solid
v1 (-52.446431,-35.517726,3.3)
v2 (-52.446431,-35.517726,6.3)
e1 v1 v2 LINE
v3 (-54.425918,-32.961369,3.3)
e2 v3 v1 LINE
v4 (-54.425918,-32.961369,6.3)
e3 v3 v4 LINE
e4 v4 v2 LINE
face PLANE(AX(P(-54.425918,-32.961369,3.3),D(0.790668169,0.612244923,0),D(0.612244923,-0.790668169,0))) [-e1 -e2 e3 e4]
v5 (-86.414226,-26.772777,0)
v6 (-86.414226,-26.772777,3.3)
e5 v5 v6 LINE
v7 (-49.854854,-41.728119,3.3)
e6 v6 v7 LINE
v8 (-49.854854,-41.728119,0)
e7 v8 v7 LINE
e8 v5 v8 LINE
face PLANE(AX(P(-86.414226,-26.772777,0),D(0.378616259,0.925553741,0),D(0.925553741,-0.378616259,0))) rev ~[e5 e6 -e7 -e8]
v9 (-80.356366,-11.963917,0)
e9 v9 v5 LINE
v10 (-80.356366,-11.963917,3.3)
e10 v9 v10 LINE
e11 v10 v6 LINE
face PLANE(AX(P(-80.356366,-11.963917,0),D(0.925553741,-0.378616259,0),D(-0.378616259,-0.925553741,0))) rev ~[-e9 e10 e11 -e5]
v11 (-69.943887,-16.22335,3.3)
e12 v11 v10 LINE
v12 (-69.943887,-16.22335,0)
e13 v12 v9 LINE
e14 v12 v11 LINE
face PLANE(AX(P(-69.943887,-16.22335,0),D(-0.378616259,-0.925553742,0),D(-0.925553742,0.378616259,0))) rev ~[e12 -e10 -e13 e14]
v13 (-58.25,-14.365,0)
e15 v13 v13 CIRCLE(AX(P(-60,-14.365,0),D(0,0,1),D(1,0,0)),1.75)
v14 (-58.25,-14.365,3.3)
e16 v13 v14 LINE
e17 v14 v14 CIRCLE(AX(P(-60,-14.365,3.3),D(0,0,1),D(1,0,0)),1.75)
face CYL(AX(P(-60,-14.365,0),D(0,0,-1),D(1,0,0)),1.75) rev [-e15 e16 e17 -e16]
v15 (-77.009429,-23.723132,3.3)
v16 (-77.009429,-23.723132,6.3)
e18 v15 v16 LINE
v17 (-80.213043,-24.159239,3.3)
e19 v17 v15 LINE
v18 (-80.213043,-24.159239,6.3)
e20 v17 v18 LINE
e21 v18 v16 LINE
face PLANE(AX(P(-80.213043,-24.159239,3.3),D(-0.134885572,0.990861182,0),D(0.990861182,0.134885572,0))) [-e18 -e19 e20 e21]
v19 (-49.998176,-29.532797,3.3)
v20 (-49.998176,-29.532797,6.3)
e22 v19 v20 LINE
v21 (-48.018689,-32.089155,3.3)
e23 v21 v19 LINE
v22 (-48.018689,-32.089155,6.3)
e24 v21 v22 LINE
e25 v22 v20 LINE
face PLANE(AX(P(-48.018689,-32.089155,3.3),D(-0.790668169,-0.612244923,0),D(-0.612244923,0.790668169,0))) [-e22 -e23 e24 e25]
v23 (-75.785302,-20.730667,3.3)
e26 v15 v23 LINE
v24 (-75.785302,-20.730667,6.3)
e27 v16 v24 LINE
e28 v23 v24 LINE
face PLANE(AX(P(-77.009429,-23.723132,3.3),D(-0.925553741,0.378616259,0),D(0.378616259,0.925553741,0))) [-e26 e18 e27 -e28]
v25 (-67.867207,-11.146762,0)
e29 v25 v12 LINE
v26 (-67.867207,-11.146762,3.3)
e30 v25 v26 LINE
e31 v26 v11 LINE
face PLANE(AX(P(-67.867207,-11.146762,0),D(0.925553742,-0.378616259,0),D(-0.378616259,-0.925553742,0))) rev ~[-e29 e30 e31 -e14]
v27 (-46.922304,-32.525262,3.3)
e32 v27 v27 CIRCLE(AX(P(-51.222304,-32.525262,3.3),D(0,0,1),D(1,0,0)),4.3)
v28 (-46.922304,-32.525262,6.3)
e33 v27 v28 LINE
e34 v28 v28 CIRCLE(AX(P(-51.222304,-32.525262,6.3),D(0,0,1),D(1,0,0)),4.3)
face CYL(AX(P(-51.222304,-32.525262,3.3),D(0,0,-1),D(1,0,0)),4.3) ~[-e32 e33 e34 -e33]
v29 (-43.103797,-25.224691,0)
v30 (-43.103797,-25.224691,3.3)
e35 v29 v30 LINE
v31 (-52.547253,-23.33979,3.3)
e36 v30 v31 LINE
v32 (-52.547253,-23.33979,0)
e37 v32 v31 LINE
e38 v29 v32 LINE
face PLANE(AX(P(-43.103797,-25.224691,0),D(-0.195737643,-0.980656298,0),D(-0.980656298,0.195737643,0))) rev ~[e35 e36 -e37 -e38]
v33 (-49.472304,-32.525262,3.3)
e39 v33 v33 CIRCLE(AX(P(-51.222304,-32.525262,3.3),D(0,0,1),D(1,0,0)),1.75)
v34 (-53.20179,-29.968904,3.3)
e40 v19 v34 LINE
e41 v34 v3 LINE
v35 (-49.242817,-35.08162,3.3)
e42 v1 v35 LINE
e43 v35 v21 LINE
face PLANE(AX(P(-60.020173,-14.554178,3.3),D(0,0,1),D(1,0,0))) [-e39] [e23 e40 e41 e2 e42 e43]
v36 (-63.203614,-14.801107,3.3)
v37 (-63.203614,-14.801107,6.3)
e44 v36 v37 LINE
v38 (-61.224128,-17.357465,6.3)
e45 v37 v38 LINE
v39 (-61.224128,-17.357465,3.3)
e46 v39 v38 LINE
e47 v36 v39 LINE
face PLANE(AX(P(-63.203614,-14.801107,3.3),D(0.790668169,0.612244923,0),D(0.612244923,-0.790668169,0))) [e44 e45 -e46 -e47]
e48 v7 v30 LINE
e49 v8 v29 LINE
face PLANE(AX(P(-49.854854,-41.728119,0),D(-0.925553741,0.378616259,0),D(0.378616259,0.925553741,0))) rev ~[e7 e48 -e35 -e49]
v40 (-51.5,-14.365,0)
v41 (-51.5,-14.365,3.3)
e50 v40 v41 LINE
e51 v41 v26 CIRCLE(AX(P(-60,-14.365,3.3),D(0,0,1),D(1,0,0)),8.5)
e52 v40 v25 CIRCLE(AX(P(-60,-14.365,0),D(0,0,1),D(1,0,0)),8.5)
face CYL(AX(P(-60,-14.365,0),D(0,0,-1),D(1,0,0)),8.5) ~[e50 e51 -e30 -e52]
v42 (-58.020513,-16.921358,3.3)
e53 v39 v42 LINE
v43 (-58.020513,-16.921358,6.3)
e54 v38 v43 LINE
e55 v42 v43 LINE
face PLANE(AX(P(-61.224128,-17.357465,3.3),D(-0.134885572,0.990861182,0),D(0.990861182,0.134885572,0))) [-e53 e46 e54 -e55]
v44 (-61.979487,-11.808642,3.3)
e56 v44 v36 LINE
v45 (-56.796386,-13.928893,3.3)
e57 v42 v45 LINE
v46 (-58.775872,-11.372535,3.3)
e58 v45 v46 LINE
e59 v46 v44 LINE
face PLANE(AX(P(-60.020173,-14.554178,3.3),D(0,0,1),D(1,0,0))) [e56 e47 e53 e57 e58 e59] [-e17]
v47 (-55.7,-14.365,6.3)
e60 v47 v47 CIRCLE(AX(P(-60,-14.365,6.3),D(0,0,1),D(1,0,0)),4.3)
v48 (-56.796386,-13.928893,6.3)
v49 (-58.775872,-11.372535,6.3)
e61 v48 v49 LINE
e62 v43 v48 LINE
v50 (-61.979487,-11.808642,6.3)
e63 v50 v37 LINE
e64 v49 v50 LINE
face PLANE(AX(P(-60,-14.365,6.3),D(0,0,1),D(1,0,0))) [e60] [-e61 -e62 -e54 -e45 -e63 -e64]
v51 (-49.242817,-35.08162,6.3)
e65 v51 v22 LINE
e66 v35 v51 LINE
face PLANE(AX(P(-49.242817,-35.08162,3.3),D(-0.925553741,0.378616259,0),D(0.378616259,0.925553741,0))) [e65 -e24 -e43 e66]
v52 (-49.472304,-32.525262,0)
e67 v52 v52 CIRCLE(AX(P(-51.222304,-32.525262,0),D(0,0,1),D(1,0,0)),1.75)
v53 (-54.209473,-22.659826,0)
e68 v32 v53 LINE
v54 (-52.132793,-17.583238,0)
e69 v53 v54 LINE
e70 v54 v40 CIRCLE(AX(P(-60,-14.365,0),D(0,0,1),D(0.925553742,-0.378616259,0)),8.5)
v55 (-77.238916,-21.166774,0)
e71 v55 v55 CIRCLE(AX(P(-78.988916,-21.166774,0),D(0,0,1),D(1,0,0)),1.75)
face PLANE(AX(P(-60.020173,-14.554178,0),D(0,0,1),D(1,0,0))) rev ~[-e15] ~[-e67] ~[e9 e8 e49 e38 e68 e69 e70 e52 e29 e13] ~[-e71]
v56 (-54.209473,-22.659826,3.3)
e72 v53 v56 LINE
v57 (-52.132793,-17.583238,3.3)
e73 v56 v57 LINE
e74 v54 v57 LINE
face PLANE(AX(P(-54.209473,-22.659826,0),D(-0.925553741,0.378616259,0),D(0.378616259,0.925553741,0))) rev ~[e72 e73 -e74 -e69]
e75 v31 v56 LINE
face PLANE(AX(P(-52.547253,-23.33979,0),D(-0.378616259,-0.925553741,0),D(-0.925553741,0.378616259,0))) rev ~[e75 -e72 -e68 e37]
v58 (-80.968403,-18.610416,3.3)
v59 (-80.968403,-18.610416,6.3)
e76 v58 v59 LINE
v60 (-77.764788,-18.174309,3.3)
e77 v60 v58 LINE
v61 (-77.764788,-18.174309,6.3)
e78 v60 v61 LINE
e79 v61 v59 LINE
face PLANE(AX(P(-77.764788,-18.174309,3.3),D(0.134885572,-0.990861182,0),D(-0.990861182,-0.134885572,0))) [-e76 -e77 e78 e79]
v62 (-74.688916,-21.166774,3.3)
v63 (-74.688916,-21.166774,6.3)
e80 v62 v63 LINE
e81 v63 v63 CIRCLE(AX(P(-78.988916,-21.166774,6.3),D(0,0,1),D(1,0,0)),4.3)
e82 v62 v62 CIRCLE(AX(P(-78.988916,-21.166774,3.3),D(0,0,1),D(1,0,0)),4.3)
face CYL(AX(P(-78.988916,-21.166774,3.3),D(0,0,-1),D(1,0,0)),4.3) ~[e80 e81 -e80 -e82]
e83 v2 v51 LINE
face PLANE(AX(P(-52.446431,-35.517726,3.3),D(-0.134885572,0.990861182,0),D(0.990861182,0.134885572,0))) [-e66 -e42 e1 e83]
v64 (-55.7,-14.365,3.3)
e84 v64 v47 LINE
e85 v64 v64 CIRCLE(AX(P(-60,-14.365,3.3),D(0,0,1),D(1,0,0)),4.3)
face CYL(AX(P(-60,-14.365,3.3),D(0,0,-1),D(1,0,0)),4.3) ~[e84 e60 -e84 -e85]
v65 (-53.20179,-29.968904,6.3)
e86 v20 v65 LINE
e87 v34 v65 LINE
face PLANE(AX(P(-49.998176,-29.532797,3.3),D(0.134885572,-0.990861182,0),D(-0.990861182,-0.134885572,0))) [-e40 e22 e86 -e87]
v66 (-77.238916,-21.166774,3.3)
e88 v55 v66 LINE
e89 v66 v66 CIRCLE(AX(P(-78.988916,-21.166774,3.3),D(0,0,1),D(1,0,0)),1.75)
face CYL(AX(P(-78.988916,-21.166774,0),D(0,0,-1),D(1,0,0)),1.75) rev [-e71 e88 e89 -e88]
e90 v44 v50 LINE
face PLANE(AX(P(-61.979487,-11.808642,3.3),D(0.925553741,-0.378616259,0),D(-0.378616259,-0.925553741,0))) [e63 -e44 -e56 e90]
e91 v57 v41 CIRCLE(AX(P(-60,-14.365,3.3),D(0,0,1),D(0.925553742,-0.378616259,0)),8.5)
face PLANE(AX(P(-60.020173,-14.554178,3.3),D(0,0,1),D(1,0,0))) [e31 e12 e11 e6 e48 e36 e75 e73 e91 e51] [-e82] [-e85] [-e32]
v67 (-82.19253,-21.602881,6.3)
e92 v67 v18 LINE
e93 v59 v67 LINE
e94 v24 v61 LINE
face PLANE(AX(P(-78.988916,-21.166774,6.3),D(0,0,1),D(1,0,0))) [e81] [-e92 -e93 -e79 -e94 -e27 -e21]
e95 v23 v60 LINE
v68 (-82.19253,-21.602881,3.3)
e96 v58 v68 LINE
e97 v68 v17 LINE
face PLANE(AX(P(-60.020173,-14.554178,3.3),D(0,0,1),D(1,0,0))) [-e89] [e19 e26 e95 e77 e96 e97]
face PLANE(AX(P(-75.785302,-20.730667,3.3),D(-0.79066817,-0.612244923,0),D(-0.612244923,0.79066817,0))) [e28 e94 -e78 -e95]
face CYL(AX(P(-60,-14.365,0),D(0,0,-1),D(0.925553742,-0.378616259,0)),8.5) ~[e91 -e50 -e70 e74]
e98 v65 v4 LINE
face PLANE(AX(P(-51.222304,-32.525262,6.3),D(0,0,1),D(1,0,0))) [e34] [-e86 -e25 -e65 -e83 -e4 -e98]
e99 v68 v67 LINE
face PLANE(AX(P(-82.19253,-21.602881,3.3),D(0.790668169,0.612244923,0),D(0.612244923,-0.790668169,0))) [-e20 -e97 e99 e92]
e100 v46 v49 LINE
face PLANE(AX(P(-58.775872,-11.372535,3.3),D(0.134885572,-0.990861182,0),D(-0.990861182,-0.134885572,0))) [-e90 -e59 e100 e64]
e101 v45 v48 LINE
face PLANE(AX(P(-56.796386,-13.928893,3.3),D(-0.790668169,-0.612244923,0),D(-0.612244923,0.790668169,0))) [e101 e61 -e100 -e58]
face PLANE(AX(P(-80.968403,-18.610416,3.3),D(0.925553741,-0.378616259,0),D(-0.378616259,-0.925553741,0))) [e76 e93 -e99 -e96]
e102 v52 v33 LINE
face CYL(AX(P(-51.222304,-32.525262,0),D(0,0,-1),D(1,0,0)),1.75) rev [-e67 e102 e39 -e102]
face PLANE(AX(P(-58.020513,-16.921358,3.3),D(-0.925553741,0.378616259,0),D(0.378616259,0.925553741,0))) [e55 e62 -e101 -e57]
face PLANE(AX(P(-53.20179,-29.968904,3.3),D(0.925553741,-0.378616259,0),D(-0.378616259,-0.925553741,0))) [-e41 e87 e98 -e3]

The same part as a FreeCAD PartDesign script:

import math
import FreeCAD as App
import Part
import Sketcher
from FreeCAD import Vector
Q = App.Units.Quantity

doc = App.newDocument("Part")
body = doc.addObject("PartDesign::Body", "Body")

# Sketch on XY plane
sketch1 = body.newObject("Sketcher::SketchObject", "Sketch")
sketch1.AttachmentSupport = (doc.getObject("XY_Plane"), [""])
sketch1.MapMode = "FlatFace"
sketch1.addGeometry(Part.ArcOfCircle(Part.Circle(Vector(-60, -14.365, 0), Vector(0, 0, 1), 8.5), math.radians(0), math.radians(157.752003)), False)
sketch1.addGeometry(Part.LineSegment(Vector(-67.867207, -11.146762, 0), Vector(-69.943887, -16.22335, 0)), False)
sketch1.addGeometry(Part.LineSegment(Vector(-69.943887, -16.22335, 0), Vector(-80.356366, -11.963917, 0)), False)
sketch1.addGeometry(Part.LineSegment(Vector(-80.356366, -11.963917, 0), Vector(-86.414226, -26.772777, 0)), False)
sketch1.addGeometry(Part.LineSegment(Vector(-86.414226, -26.772777, 0), Vector(-49.854854, -41.728119, 0)), False)
sketch1.addGeometry(Part.LineSegment(Vector(-49.854854, -41.728119, 0), Vector(-43.103797, -25.224691, 0)), False)
sketch1.addGeometry(Part.LineSegment(Vector(-43.103797, -25.224691, 0), Vector(-52.547253, -23.33979, 0)), False)
sketch1.addGeometry(Part.LineSegment(Vector(-52.547253, -23.33979, 0), Vector(-54.209473, -22.659826, 0)), False)
sketch1.addGeometry(Part.LineSegment(Vector(-54.209473, -22.659826, 0), Vector(-52.132793, -17.583238, 0)), False)
sketch1.addGeometry(Part.ArcOfCircle(Part.Circle(Vector(-60, -14.365, 0), Vector(0, 0, 1), 8.5), math.radians(-22.247997), math.radians(0)), False)
sketch1.addGeometry(Part.Circle(Vector(-51.222304, -32.525262, 0), Vector(0, 0, 1), 1.75), False)
sketch1.addGeometry(Part.Circle(Vector(-78.988916, -21.166774, 0), Vector(0, 0, 1), 1.75), False)
sketch1.addGeometry(Part.Circle(Vector(-60, -14.365, 0), Vector(0, 0, 1), 1.75), False)
sketch1.addConstraint(Sketcher.Constraint("Tangent", 0, 2, 1, 1))
sketch1.addConstraint(Sketcher.Constraint("Coincident", 1, 2, 2, 1))
sketch1.addConstraint(Sketcher.Constraint("Coincident", 2, 2, 3, 1))
sketch1.addConstraint(Sketcher.Constraint("Coincident", 3, 2, 4, 1))
sketch1.addConstraint(Sketcher.Constraint("Coincident", 4, 2, 5, 1))
sketch1.addConstraint(Sketcher.Constraint("Coincident", 5, 2, 6, 1))
sketch1.addConstraint(Sketcher.Constraint("Coincident", 6, 2, 7, 1))
sketch1.addConstraint(Sketcher.Constraint("Coincident", 7, 2, 8, 1))
sketch1.addConstraint(Sketcher.Constraint("Tangent", 8, 2, 9, 1))
sketch1.addConstraint(Sketcher.Constraint("Tangent", 9, 2, 0, 1))
sketch1.addConstraint(Sketcher.Constraint("Coincident", 12, 3, 0, 3))
sketch1.addConstraint(Sketcher.Constraint("Equal", 0, 9))
sketch1.addConstraint(Sketcher.Constraint("Equal", 10, 11))
sketch1.addConstraint(Sketcher.Constraint("Equal", 11, 12))
sketch1.addConstraint(Sketcher.Constraint("Perpendicular", 1, 2))
sketch1.addConstraint(Sketcher.Constraint("Perpendicular", 2, 3))
sketch1.addConstraint(Sketcher.Constraint("Perpendicular", 3, 4))
sketch1.addConstraint(Sketcher.Constraint("Perpendicular", 4, 5))
sketch1.addConstraint(Sketcher.Constraint("Perpendicular", 5, 7))
sketch1.addConstraint(Sketcher.Constraint("Perpendicular", 7, 8))
sketch1.addConstraint(Sketcher.Constraint("Horizontal", 12, 3, 9, 2))
sketch1.addConstraint(Sketcher.Constraint("Equal", 1, 8))
sketch1.addConstraint(Sketcher.Constraint("Diameter", 10, Q("3.5 mm")))
sketch1.addConstraint(Sketcher.Constraint("Radius", 0, Q("8.5 mm")))
sketch1.addConstraint(Sketcher.Constraint("Distance", 3, Q("16 mm")))
sketch1.addConstraint(Sketcher.Constraint("DistanceX", 0, 3, -1, 1, Q("60 mm")))
sketch1.addConstraint(Sketcher.Constraint("Distance", 4, Q("39.5 mm")))
sketch1.addConstraint(Sketcher.Constraint("Distance", 2, Q("11.25 mm")))
sketch1.addConstraint(Sketcher.Constraint("DistanceY", 0, 3, -1, 1, Q("14.365 mm")))
sketch1.addConstraint(Sketcher.Constraint("DistanceY", 10, 3, 0, 2, Q("21.3785 mm")))
sketch1.addConstraint(Sketcher.Constraint("DistanceY", 5, 2, 6, 2, Q("1.884901 mm")))
sketch1.addConstraint(Sketcher.Constraint("Distance", 1, Q("5.48492 mm")))
sketch1.addConstraint(Sketcher.Constraint("Distance", 5, Q("17.830869 mm")))
sketch1.addConstraint(Sketcher.Constraint("Distance", 6, Q("9.629731 mm")))
sketch1.addConstraint(Sketcher.Constraint("DistanceX", 11, 3, 0, 2, Q("11.121709 mm")))
sketch1.addConstraint(Sketcher.Constraint("DistanceX", 10, 3, 4, 2, Q("1.36745 mm")))
sketch1.addConstraint(Sketcher.Constraint("DistanceY", 11, 3, -1, 1, Q("21.166774 mm")))
pad1 = body.newObject("PartDesign::Pad", "Pad")
pad1.Profile = sketch1
pad1.Length = 3.3

# Sketch on XY plane
sketch2 = body.newObject("Sketcher::SketchObject", "Sketch001")
sketch2.AttachmentSupport = (doc.getObject("XY_Plane"), [""])
sketch2.MapMode = "FlatFace"
sketch2.AttachmentOffset = App.Placement(Vector(0, 0, 3.3), App.Rotation())
sketch2.addGeometry(Part.Circle(Vector(-78.988916, -21.166774, 0), Vector(0, 0, 1), 4.3), False)
sketch2.addGeometry(Part.LineSegment(Vector(-77.764788, -18.174309, 0), Vector(-75.785302, -20.730667, 0)), False)
sketch2.addGeometry(Part.LineSegment(Vector(-75.785302, -20.730667, 0), Vector(-77.009429, -23.723132, 0)), False)
sketch2.addGeometry(Part.LineSegment(Vector(-77.009429, -23.723132, 0), Vector(-80.213043, -24.159239, 0)), False)
sketch2.addGeometry(Part.LineSegment(Vector(-80.213043, -24.159239, 0), Vector(-82.19253, -21.602881, 0)), False)
sketch2.addGeometry(Part.LineSegment(Vector(-82.19253, -21.602881, 0), Vector(-80.968403, -18.610416, 0)), False)
sketch2.addGeometry(Part.LineSegment(Vector(-80.968403, -18.610416, 0), Vector(-77.764788, -18.174309, 0)), False)
sketch2.addGeometry(Part.Circle(Vector(-60, -14.365, 0), Vector(0, 0, 1), 4.3), False)
sketch2.addGeometry(Part.LineSegment(Vector(-61.224128, -17.357465, 0), Vector(-63.203614, -14.801107, 0)), False)
sketch2.addGeometry(Part.LineSegment(Vector(-63.203614, -14.801107, 0), Vector(-61.979487, -11.808642, 0)), False)
sketch2.addGeometry(Part.LineSegment(Vector(-61.979487, -11.808642, 0), Vector(-58.775872, -11.372535, 0)), False)
sketch2.addGeometry(Part.LineSegment(Vector(-58.775872, -11.372535, 0), Vector(-56.796386, -13.928893, 0)), False)
sketch2.addGeometry(Part.LineSegment(Vector(-56.796386, -13.928893, 0), Vector(-58.020513, -16.921358, 0)), False)
sketch2.addGeometry(Part.LineSegment(Vector(-58.020513, -16.921358, 0), Vector(-61.224128, -17.357465, 0)), False)
sketch2.addGeometry(Part.Circle(Vector(-51.222304, -32.525262, 0), Vector(0, 0, 1), 4.3), False)
sketch2.addGeometry(Part.LineSegment(Vector(-52.446431, -35.517726, 0), Vector(-54.425918, -32.961369, 0)), False)
sketch2.addGeometry(Part.LineSegment(Vector(-54.425918, -32.961369, 0), Vector(-53.20179, -29.968904, 0)), False)
sketch2.addGeometry(Part.LineSegment(Vector(-53.20179, -29.968904, 0), Vector(-49.998176, -29.532797, 0)), False)
sketch2.addGeometry(Part.LineSegment(Vector(-49.998176, -29.532797, 0), Vector(-48.018689, -32.089155, 0)), False)
sketch2.addGeometry(Part.LineSegment(Vector(-48.018689, -32.089155, 0), Vector(-49.242817, -35.08162, 0)), False)
sketch2.addGeometry(Part.LineSegment(Vector(-49.242817, -35.08162, 0), Vector(-52.446431, -35.517726, 0)), False)
sketch2.addConstraint(Sketcher.Constraint("Coincident", 1, 2, 2, 1))
sketch2.addConstraint(Sketcher.Constraint("Coincident", 2, 2, 3, 1))
sketch2.addConstraint(Sketcher.Constraint("Coincident", 3, 2, 4, 1))
sketch2.addConstraint(Sketcher.Constraint("Coincident", 4, 2, 5, 1))
sketch2.addConstraint(Sketcher.Constraint("Coincident", 5, 2, 6, 1))
sketch2.addConstraint(Sketcher.Constraint("Coincident", 6, 2, 1, 1))
sketch2.addConstraint(Sketcher.Constraint("Coincident", 8, 2, 9, 1))
sketch2.addConstraint(Sketcher.Constraint("Coincident", 9, 2, 10, 1))
sketch2.addConstraint(Sketcher.Constraint("Coincident", 10, 2, 11, 1))
sketch2.addConstraint(Sketcher.Constraint("Coincident", 11, 2, 12, 1))
sketch2.addConstraint(Sketcher.Constraint("Coincident", 12, 2, 13, 1))
sketch2.addConstraint(Sketcher.Constraint("Coincident", 13, 2, 8, 1))
sketch2.addConstraint(Sketcher.Constraint("Coincident", 15, 2, 16, 1))
sketch2.addConstraint(Sketcher.Constraint("Coincident", 16, 2, 17, 1))
sketch2.addConstraint(Sketcher.Constraint("Coincident", 17, 2, 18, 1))
sketch2.addConstraint(Sketcher.Constraint("Coincident", 18, 2, 19, 1))
sketch2.addConstraint(Sketcher.Constraint("Coincident", 19, 2, 20, 1))
sketch2.addConstraint(Sketcher.Constraint("Coincident", 20, 2, 15, 1))
sketch2.addConstraint(Sketcher.Constraint("Equal", 0, 7))
sketch2.addConstraint(Sketcher.Constraint("Equal", 7, 14))
sketch2.addConstraint(Sketcher.Constraint("Parallel", 1, 4))
sketch2.addConstraint(Sketcher.Constraint("Parallel", 2, 5))
sketch2.addConstraint(Sketcher.Constraint("Parallel", 3, 6))
sketch2.addConstraint(Sketcher.Constraint("Parallel", 4, 8))
sketch2.addConstraint(Sketcher.Constraint("Parallel", 5, 9))
sketch2.addConstraint(Sketcher.Constraint("Parallel", 6, 10))
sketch2.addConstraint(Sketcher.Constraint("Parallel", 8, 11))
sketch2.addConstraint(Sketcher.Constraint("Parallel", 9, 12))
sketch2.addConstraint(Sketcher.Constraint("Parallel", 10, 13))
sketch2.addConstraint(Sketcher.Constraint("Parallel", 11, 15))
sketch2.addConstraint(Sketcher.Constraint("Parallel", 12, 16))
sketch2.addConstraint(Sketcher.Constraint("Parallel", 13, 17))
sketch2.addConstraint(Sketcher.Constraint("Parallel", 15, 18))
sketch2.addConstraint(Sketcher.Constraint("Parallel", 16, 19))
sketch2.addConstraint(Sketcher.Constraint("Parallel", 17, 20))
sketch2.addConstraint(Sketcher.Constraint("Equal", 1, 2))
sketch2.addConstraint(Sketcher.Constraint("Equal", 2, 3))
sketch2.addConstraint(Sketcher.Constraint("Equal", 3, 4))
sketch2.addConstraint(Sketcher.Constraint("Equal", 6, 8))
sketch2.addConstraint(Sketcher.Constraint("Equal", 8, 9))
sketch2.addConstraint(Sketcher.Constraint("Equal", 9, 10))
sketch2.addConstraint(Sketcher.Constraint("Equal", 10, 11))
sketch2.addConstraint(Sketcher.Constraint("Equal", 13, 15))
sketch2.addConstraint(Sketcher.Constraint("Equal", 15, 16))
sketch2.addConstraint(Sketcher.Constraint("Equal", 16, 17))
sketch2.addConstraint(Sketcher.Constraint("Equal", 17, 18))
sketch2.addConstraint(Sketcher.Constraint("Diameter", 0, Q("8.6 mm")))
sketch2.addConstraint(Sketcher.Constraint("DistanceX", 7, 3, -1, 1, Q("60 mm")))
sketch2.addConstraint(Sketcher.Constraint("DistanceY", 7, 3, -1, 1, Q("14.365 mm")))
sketch2.addConstraint(Sketcher.Constraint("DistanceX", 1, 2, 14, 3, Q("24.562998 mm")))
sketch2.addConstraint(Sketcher.Constraint("DistanceX", 1, 2, -1, 1, Q("75.785302 mm")))
sketch2.addConstraint(Sketcher.Constraint("DistanceX", 4, 2, 2, 2, Q("5.183101 mm")))
sketch2.addConstraint(Sketcher.Constraint("DistanceX", 0, 3, 8, 2, Q("15.785302 mm")))
sketch2.addConstraint(Sketcher.Constraint("DistanceX", 6, 2, 9, 2, Q("15.785302 mm")))
sketch2.addConstraint(Sketcher.Constraint("Distance", 1, Q("3.233162 mm")))
sketch2.addConstraint(Sketcher.Constraint("DistanceY", 14, 3, -1, 1, Q("32.525262 mm")))
sketch2.addConstraint(Sketcher.Constraint("DistanceX", 2, 2, -1, 1, Q("77.009429 mm")))
sketch2.addConstraint(Sketcher.Constraint("DistanceY", 2, 2, -1, 1, Q("23.723132 mm")))
sketch2.addConstraint(Sketcher.Constraint("DistanceY", 3, 2, -1, 1, Q("24.159239 mm")))
sketch2.addConstraint(Sketcher.Constraint("DistanceY", 15, 2, -1, 1, Q("32.961369 mm")))
sketch2.addConstraint(Sketcher.Constraint("DistanceX", 16, 2, -1, 1, Q("53.20179 mm")))
sketch2.addConstraint(Sketcher.Constraint("DistanceY", 1, 2, 8, 2, Q("5.92956 mm")))
sketch2.addConstraint(Sketcher.Constraint("DistanceY", 0, 3, -1, 1, Q("21.166774 mm")))
pad2 = body.newObject("PartDesign::Pad", "Pad001")
pad2.Profile = sketch2
pad2.Length = 3

doc.recompute()
